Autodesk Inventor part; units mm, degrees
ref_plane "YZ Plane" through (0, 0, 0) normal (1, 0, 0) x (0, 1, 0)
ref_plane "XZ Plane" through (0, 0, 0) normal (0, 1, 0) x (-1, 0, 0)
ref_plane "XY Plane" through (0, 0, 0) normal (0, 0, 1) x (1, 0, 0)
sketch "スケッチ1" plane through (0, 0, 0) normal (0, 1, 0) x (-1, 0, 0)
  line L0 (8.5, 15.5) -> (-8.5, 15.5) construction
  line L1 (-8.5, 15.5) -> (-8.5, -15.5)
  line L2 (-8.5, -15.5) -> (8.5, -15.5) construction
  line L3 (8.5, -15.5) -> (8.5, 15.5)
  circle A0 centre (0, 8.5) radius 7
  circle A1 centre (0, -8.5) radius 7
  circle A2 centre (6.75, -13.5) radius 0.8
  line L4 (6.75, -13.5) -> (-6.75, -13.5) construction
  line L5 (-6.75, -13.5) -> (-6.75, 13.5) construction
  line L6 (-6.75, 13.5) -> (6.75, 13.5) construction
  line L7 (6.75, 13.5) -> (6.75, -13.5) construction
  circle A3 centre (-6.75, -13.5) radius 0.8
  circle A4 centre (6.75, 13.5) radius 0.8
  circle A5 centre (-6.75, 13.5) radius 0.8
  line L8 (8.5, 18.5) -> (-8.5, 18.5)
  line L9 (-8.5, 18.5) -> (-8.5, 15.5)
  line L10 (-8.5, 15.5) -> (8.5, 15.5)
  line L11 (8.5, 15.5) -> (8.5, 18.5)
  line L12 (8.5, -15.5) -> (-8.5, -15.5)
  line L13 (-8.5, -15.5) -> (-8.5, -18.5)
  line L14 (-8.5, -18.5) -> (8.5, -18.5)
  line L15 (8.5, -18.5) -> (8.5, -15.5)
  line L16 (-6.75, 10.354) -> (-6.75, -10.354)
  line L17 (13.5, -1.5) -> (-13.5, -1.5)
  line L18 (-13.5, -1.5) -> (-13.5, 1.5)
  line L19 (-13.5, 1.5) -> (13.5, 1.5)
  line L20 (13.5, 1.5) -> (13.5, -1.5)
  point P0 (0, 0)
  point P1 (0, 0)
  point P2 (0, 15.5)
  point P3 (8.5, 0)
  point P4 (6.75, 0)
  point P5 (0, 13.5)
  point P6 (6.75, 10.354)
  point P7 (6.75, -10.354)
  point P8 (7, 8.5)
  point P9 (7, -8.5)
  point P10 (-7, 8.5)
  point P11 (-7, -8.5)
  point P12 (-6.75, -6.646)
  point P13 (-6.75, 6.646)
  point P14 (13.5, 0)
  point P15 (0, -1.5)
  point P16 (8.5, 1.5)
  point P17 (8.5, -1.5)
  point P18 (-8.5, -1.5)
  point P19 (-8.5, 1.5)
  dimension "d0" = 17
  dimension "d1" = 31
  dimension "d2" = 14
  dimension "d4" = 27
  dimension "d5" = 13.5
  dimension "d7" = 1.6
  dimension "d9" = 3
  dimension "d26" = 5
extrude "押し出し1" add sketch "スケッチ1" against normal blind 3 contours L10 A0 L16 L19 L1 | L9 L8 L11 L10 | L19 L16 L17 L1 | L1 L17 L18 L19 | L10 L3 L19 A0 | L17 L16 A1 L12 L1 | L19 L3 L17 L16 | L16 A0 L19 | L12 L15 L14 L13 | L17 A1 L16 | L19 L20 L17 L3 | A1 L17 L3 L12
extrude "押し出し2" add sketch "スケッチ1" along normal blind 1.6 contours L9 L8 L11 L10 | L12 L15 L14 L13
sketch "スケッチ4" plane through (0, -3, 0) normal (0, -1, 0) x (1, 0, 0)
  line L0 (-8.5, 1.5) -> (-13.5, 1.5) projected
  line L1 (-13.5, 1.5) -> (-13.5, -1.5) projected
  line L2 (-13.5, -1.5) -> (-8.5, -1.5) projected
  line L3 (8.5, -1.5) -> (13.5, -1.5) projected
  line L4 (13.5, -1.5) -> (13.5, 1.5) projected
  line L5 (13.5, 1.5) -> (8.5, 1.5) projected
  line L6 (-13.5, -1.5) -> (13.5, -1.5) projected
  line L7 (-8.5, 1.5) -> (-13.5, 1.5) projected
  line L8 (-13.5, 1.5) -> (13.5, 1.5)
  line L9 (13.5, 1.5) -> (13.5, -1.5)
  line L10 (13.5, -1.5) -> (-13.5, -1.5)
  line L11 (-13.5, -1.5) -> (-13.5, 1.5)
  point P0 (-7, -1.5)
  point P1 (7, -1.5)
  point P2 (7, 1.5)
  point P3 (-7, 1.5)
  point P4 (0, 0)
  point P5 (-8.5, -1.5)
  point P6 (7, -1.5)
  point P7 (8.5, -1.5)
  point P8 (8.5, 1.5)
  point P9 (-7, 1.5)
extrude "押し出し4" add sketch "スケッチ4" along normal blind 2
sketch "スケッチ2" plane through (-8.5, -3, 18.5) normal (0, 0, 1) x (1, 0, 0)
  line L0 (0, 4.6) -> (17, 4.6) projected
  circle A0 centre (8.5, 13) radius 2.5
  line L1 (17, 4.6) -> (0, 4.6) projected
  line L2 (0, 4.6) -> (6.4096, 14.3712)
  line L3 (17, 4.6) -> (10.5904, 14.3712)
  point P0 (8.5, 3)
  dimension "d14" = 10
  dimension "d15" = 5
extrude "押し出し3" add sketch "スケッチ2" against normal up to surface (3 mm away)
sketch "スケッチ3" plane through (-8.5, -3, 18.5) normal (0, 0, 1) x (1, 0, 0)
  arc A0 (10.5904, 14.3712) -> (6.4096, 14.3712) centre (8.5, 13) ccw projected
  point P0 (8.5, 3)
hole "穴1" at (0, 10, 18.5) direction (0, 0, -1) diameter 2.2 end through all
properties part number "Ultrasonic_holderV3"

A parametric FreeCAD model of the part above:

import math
import FreeCAD as App
import Part
import Sketcher
from FreeCAD import Vector
Q = App.Units.Quantity

doc = App.newDocument("Part")
body = doc.addObject("PartDesign::Body", "Body")

sketch1 = body.newObject("Sketcher::SketchObject", "Sketch")
sketch1.AttachmentSupport = (doc.getObject("XZ_Plane"), [""])
sketch1.MapMode = "FlatFace"
sketch1.addGeometry([
    Part.LineSegment(Vector(8.5, 1.5, 0), Vector(13.5, 1.5, 0)),
    Part.LineSegment(Vector(13.5, 1.5, 0), Vector(13.5, -1.5, 0)),
    Part.LineSegment(Vector(13.5, -1.5, 0), Vector(8.5, -1.5, 0)),
    Part.LineSegment(Vector(8.5, -1.5, 0), Vector(8.5, -18.5, 0)),
    Part.LineSegment(Vector(8.5, -18.5, 0), Vector(-8.5, -18.5, 0)),
    Part.LineSegment(Vector(-8.5, -18.5, 0), Vector(-8.5, -1.5, 0)),
    Part.LineSegment(Vector(-8.5, -1.5, 0), Vector(-13.5, -1.5, 0)),
    Part.LineSegment(Vector(-13.5, -1.5, 0), Vector(-13.5, 1.5, 0)),
    Part.LineSegment(Vector(-13.5, 1.5, 0), Vector(-8.5, 1.5, 0)),
    Part.LineSegment(Vector(-8.5, 1.5, 0), Vector(-8.5, 18.5, 0)),
    Part.LineSegment(Vector(-8.5, 18.5, 0), Vector(8.5, 18.5, 0)),
    Part.LineSegment(Vector(8.5, 18.5, 0), Vector(8.5, 1.5, 0)),
    Part.Circle(Vector(0, 8.5, 0), Vector(0, 0, 1), 7),
    Part.Circle(Vector(6.8, 13.5, 0), Vector(0, 0, 1), 0.8),
    Part.Circle(Vector(-6.8, 13.5, 0), Vector(0, 0, 1), 0.8),
    Part.Circle(Vector(6.8, -13.5, 0), Vector(0, 0, 1), 0.8),
    Part.Circle(Vector(0, -8.5, 0), Vector(0, 0, 1), 7),
    Part.Circle(Vector(-6.8, -13.5, 0), Vector(0, 0, 1), 0.8),
], False)
sketch1.addConstraint([
    Sketcher.Constraint("Coincident", 0, 2, 1, 1),
    Sketcher.Constraint("Coincident", 1, 2, 2, 1),
    Sketcher.Constraint("Coincident", 2, 2, 3, 1),
    Sketcher.Constraint("Coincident", 3, 2, 4, 1),
    Sketcher.Constraint("Coincident", 4, 2, 5, 1),
    Sketcher.Constraint("Coincident", 5, 2, 6, 1),
    Sketcher.Constraint("Coincident", 6, 2, 7, 1),
    Sketcher.Constraint("Coincident", 7, 2, 8, 1),
    Sketcher.Constraint("Coincident", 8, 2, 9, 1),
    Sketcher.Constraint("Coincident", 9, 2, 10, 1),
    Sketcher.Constraint("Coincident", 10, 2, 11, 1),
    Sketcher.Constraint("Coincident", 11, 2, 0, 1),
    Sketcher.Constraint("Horizontal", 0),
    Sketcher.Constraint("Vertical", 1),
    Sketcher.Constraint("Horizontal", 2),
    Sketcher.Constraint("Vertical", 3),
    Sketcher.Constraint("Horizontal", 4),
    Sketcher.Constraint("Vertical", 5),
    Sketcher.Constraint("Horizontal", 6),
    Sketcher.Constraint("Vertical", 7),
    Sketcher.Constraint("Horizontal", 8),
    Sketcher.Constraint("Vertical", 9),
    Sketcher.Constraint("Horizontal", 10),
    Sketcher.Constraint("Vertical", 11),
    Sketcher.Constraint("Equal", 13, 14),
    Sketcher.Constraint("Equal", 14, 15),
    Sketcher.Constraint("Equal", 12, 16),
    Sketcher.Constraint("Equal", 15, 17),
    Sketcher.Constraint("Symmetric", 14, 3, 15, 3, -1, 1),
    Sketcher.Constraint("Symmetric", 12, 3, 16, 3, -1, 1),
    Sketcher.Constraint("Symmetric", 13, 3, 17, 3, -1, 1),
    Sketcher.Constraint("Symmetric", 0, 2, 6, 2, -1, 1),
    Sketcher.Constraint("Symmetric", 2, 2, 8, 2, -1, 1),
    Sketcher.Constraint("Symmetric", 4, 2, 10, 2, -1, 1),
    Sketcher.Constraint("Symmetric", 13, 3, 14, 3, -2),
    Sketcher.Constraint("Symmetric", 2, 2, 5, 2, -2),
    Sketcher.Constraint("PointOnObject", 12, 3, -2),
    Sketcher.Constraint("Equal", 10, 3),
    Sketcher.Constraint("Diameter", 12, Q("14 mm")),
    Sketcher.Constraint("Diameter", 13, Q("1.6 mm")),
    Sketcher.Constraint("DistanceX", 0, 1, 0, 2, Q("5 mm")),
    Sketcher.Constraint("DistanceX", 4, 2, 4, 1, Q("17 mm")),
    Sketcher.Constraint("DistanceY", 1, 2, 1, 1, Q("3 mm")),
    Sketcher.Constraint("DistanceY", 12, 3, 13, 3, Q("5 mm")),
    Sketcher.Constraint("DistanceY", 15, 3, 13, 3, Q("27 mm")),
    Sketcher.Constraint("DistanceX", 14, 3, 13, 3, Q("13.5 mm")),
])
pad1 = body.newObject("PartDesign::Pad", "Pad")
pad1.Profile = sketch1
pad1.Length = 3

sketch2 = body.newObject("Sketcher::SketchObject", "Sketch001")
sketch2.AttachmentSupport = (doc.getObject("XZ_Plane"), [""])
sketch2.MapMode = "FlatFace"
sketch2.addGeometry([
    Part.LineSegment(Vector(8.5, 18.5, 0), Vector(8.5, 15.5, 0)),
    Part.LineSegment(Vector(8.5, 15.5, 0), Vector(-8.5, 15.5, 0)),
    Part.LineSegment(Vector(-8.5, 15.5, 0), Vector(-8.5, 18.5, 0)),
    Part.LineSegment(Vector(-8.5, 18.5, 0), Vector(8.5, 18.5, 0)),
    Part.LineSegment(Vector(-8.5, -15.5, 0), Vector(8.5, -15.5, 0)),
    Part.LineSegment(Vector(8.5, -15.5, 0), Vector(8.5, -18.5, 0)),
    Part.LineSegment(Vector(8.5, -18.5, 0), Vector(-8.5, -18.5, 0)),
    Part.LineSegment(Vector(-8.5, -18.5, 0), Vector(-8.5, -15.5, 0)),
], False)
sketch2.addConstraint([
    Sketcher.Constraint("Coincident", 0, 2, 1, 1),
    Sketcher.Constraint("Coincident", 1, 2, 2, 1),
    Sketcher.Constraint("Coincident", 2, 2, 3, 1),
    Sketcher.Constraint("Coincident", 3, 2, 0, 1),
    Sketcher.Constraint("Coincident", 4, 2, 5, 1),
    Sketcher.Constraint("Coincident", 5, 2, 6, 1),
    Sketcher.Constraint("Coincident", 6, 2, 7, 1),
    Sketcher.Constraint("Coincident", 7, 2, 4, 1),
    Sketcher.Constraint("Vertical", 0),
    Sketcher.Constraint("Horizontal", 1),
    Sketcher.Constraint("Vertical", 2),
    Sketcher.Constraint("Horizontal", 3),
    Sketcher.Constraint("Horizontal", 4),
    Sketcher.Constraint("Vertical", 5),
    Sketcher.Constraint("Horizontal", 6),
    Sketcher.Constraint("Vertical", 7),
    Sketcher.Constraint("Symmetric", 1, 2, 4, 2, -1, 1),
    Sketcher.Constraint("Symmetric", 3, 2, 6, 2, -1, 1),
    Sketcher.Constraint("Vertical", 3, 2, 4, 2),
    Sketcher.Constraint("DistanceX", 1, 2, 1, 1, Q("17 mm")),
    Sketcher.Constraint("DistanceY", 0, 2, 0, 1, Q("3 mm")),
    Sketcher.Constraint("DistanceY", 4, 2, 0, 2, Q("31 mm")),
])
pad2 = body.newObject("PartDesign::Pad", "Pad001")
pad2.Profile = sketch2
pad2.Length = 1.6
pad2.Reversed = True

sketch3 = body.newObject("Sketcher::SketchObject", "Sketch002")
sketch3.AttachmentSupport = (doc.getObject("XZ_Plane"), [""])
sketch3.MapMode = "FlatFace"
sketch3.AttachmentOffset = App.Placement(Vector(0, 0, 3), App.Rotation())
sketch3.addGeometry([
    Part.LineSegment(Vector(13.5, 1.5, 0), Vector(-13.5, 1.5, 0)),
    Part.LineSegment(Vector(-13.5, 1.5, 0), Vector(-13.5, -1.5, 0)),
    Part.LineSegment(Vector(-13.5, -1.5, 0), Vector(13.5, -1.5, 0)),
    Part.LineSegment(Vector(13.5, -1.5, 0), Vector(13.5, 1.5, 0)),
], False)
sketch3.addConstraint([
    Sketcher.Constraint("Coincident", 0, 2, 1, 1),
    Sketcher.Constraint("Coincident", 1, 2, 2, 1),
    Sketcher.Constraint("Coincident", 2, 2, 3, 1),
    Sketcher.Constraint("Coincident", 3, 2, 0, 1),
    Sketcher.Constraint("Horizontal", 0),
    Sketcher.Constraint("Vertical", 1),
    Sketcher.Constraint("Horizontal", 2),
    Sketcher.Constraint("Vertical", 3),
    Sketcher.Constraint("Symmetric", 0, 2, 2, 2, -1, 1),
    Sketcher.Constraint("DistanceX", 0, 2, 0, 1, Q("27 mm")),
    Sketcher.Constraint("DistanceY", 1, 2, 1, 1, Q("3 mm")),
])
pad3 = body.newObject("PartDesign::Pad", "Pad002")
pad3.Profile = sketch3
pad3.Length = 2

sketch4 = body.newObject("Sketcher::SketchObject", "Sketch003")
sketch4.AttachmentSupport = (doc.getObject("XY_Plane"), [""])
sketch4.MapMode = "FlatFace"
sketch4.AttachmentOffset = App.Placement(Vector(0, 0, 18.5), App.Rotation())
sketch4.addGeometry([
    Part.LineSegment(Vector(-2.1, 11.4, 0), Vector(-8.5, 1.6, 0)),
    Part.LineSegment(Vector(-8.5, 1.6, 0), Vector(8.5, 1.6, 0)),
    Part.LineSegment(Vector(8.5, 1.6, 0), Vector(2.1, 11.4, 0)),
    Part.ArcOfCircle(Part.Circle(Vector(0, 10, 0), Vector(0, 0, 1), 2.5), math.radians(33), math.radians(147)),
], False)
sketch4.addConstraint([
    Sketcher.Constraint("Coincident", 0, 2, 1, 1),
    Sketcher.Constraint("Coincident", 1, 2, 2, 1),
    Sketcher.Constraint("Tangent", 2, 2, 3, 1),
    Sketcher.Constraint("Tangent", 3, 2, 0, 1),
    Sketcher.Constraint("Horizontal", 1),
    Sketcher.Constraint("Symmetric", 2, 2, 3, 2, -2),
    Sketcher.Constraint("Radius", 3, Q("2.5 mm")),
    Sketcher.Constraint("DistanceY", -1, 1, 3, 3, Q("10 mm")),
    Sketcher.Constraint("DistanceX", 1, 1, 1, 2, Q("17 mm")),
    Sketcher.Constraint("DistanceY", -1, 1, 0, 2, Q("1.6 mm")),
])
pad4 = body.newObject("PartDesign::Pad", "Pad003")
pad4.Profile = sketch4
pad4.Length = 3
pad4.Reversed = True

sketch5 = body.newObject("Sketcher::SketchObject", "Sketch004")
sketch5.AttachmentSupport = (doc.getObject("XY_Plane"), [""])
sketch5.MapMode = "FlatFace"
sketch5.AttachmentOffset = App.Placement(Vector(0, 0, 18.5), App.Rotation())
sketch5.addGeometry(Part.Circle(Vector(0, 10, 0), Vector(0, 0, 1), 1.1), False)
sketch5.addConstraint([
    Sketcher.Constraint("PointOnObject", 0, 3, -2),
    Sketcher.Constraint("Diameter", 0, Q("2.2 mm")),
    Sketcher.Constraint("DistanceY", -1, 1, 0, 3, Q("10 mm")),
])
doc.recompute()
hole = body.newObject("PartDesign::Hole", "Hole")
hole.Profile = sketch5
hole.ThreadType = "None"
hole.Diameter = 2.2
hole.DepthType = "ThroughAll"

doc.recompute()
